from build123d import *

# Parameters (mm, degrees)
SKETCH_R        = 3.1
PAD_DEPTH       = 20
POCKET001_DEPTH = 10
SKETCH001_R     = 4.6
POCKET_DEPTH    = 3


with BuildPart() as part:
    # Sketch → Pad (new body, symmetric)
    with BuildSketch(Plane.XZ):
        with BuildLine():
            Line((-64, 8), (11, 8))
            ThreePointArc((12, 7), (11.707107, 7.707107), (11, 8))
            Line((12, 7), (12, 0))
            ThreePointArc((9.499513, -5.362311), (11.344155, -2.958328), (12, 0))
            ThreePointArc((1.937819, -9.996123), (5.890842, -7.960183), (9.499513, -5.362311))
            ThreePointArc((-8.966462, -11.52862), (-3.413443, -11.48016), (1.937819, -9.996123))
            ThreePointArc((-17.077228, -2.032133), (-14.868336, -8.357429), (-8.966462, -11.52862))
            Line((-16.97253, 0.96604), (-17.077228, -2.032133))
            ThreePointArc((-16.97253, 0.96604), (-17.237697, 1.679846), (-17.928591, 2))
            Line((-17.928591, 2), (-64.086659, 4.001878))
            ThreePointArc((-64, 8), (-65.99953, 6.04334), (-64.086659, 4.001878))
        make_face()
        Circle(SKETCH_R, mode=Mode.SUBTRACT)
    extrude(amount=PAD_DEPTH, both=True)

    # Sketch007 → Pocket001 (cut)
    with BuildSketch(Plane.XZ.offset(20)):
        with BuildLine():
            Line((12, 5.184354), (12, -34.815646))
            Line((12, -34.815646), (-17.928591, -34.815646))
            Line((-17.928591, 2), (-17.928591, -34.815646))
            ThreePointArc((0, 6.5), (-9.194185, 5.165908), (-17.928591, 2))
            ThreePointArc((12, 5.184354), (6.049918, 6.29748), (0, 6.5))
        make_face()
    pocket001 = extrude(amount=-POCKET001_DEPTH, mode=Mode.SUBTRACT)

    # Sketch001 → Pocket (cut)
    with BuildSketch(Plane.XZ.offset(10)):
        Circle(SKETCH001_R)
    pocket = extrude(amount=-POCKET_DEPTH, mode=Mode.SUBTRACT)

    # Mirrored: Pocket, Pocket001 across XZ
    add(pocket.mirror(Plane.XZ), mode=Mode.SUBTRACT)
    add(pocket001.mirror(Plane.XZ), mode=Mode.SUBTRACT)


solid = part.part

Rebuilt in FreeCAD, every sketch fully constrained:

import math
import FreeCAD as App
import Part
import Sketcher

V = App.Vector
Q = App.Units.Quantity

doc = App.newDocument("Part")
body = doc.addObject("PartDesign::Body", "Body")

sketch1 = body.newObject("Sketcher::SketchObject", "Sketch")
sketch1.AttachmentSupport = (doc.getObject("XZ_Plane"), [""])
sketch1.MapMode = "FlatFace"
sketch1.addGeometry(Part.LineSegment(V(11, 8, 0), V(-64, 8, 0)), False)
sketch1.addGeometry(Part.ArcOfCircle(Part.Circle(V(-63.999999, 6, 0), V(0, 0, 1), 2), math.radians(90.000015), math.radians(267.51661)), False)
sketch1.addGeometry(Part.LineSegment(V(-64.086659, 4.001878, 0), V(-17.928591, 2, 0)), False)
sketch1.addGeometry(Part.ArcOfCircle(Part.Circle(V(-17.971922, 1.000938, 0), V(0, 0, 1), 1.000001), math.radians(-1.99992), math.radians(87.516544)), False)
sketch1.addGeometry(Part.LineSegment(V(-16.97253, 0.96604, 0), V(-17.077228, -2.032133, 0)), False)
sketch1.addGeometry(Part.ArcOfCircle(Part.Circle(V(-7.840047, -2.354703, 0), V(0, 0, 1), 9.242811), math.radians(177.999995), math.radians(263.000004)), False)
sketch1.addGeometry(Part.ArcOfCircle(Part.Circle(V(-6.373997, 9.585277, 0), V(0, 0, 1), 21.272459), math.radians(-97.000011), math.radians(-66.999987)), False)
sketch1.addGeometry(Part.ArcOfCircle(Part.Circle(V(-9.784089, 17.61898, 0), V(0, 0, 1), 29.99995), math.radians(-67.000014), math.radians(-49.999987)), False)
sketch1.addGeometry(Part.ArcOfCircle(Part.Circle(V(5.000006, -0.000003, 0), V(0, 0, 1), 6.999994), math.radians(-50.000027), math.radians(0.000021)), False)
sketch1.addGeometry(Part.LineSegment(V(12, 0, 0), V(12, 7, 0)), False)
sketch1.addGeometry(Part.ArcOfCircle(Part.Circle(V(11.000001, 7.000001, 0), V(0, 0, 1), 0.999999), math.radians(-0.000043), math.radians(90.000043)), False)
sketch1.addGeometry(Part.Circle(V(0, 0, 0), V(0, 0, 1), 3.1), False)
sketch1.addConstraint(Sketcher.Constraint("Coincident", 0, 2, 1, 1))
sketch1.addConstraint(Sketcher.Constraint("Coincident", 1, 2, 2, 1))
sketch1.addConstraint(Sketcher.Constraint("Coincident", 2, 2, 3, 2))
sketch1.addConstraint(Sketcher.Constraint("Coincident", 3, 1, 4, 1))
sketch1.addConstraint(Sketcher.Constraint("Coincident", 4, 2, 5, 1))
sketch1.addConstraint(Sketcher.Constraint("Coincident", 5, 2, 6, 1))
sketch1.addConstraint(Sketcher.Constraint("Coincident", 6, 2, 7, 1))
sketch1.addConstraint(Sketcher.Constraint("Coincident", 7, 2, 8, 1))
sketch1.addConstraint(Sketcher.Constraint("Coincident", 8, 2, 9, 1))
sketch1.addConstraint(Sketcher.Constraint("Coincident", 9, 2, 10, 1))
sketch1.addConstraint(Sketcher.Constraint("Coincident", 10, 2, 0, 1))
sketch1.addConstraint(Sketcher.Constraint("Horizontal", 0))
sketch1.addConstraint(Sketcher.Constraint("Vertical", 9))
sketch1.addConstraint(Sketcher.Constraint("Coincident", 11, 3, -1, 1))
sketch1.addConstraint(Sketcher.Constraint("PointOnObject", 8, 2, -1))
sketch1.addConstraint(Sketcher.Constraint("Radius", 1, Q("2 mm")))
sketch1.addConstraint(Sketcher.Constraint("Radius", 3, Q("1.000001 mm")))
sketch1.addConstraint(Sketcher.Constraint("Radius", 10, Q("0.999999 mm")))
sketch1.addConstraint(Sketcher.Constraint("Diameter", 11, Q("6.2 mm")))
sketch1.addConstraint(Sketcher.Constraint("DistanceX", 0, 2, 0, 1, Q("75 mm")))
sketch1.addConstraint(Sketcher.Constraint("DistanceY", 9, 1, 9, 2, Q("7 mm")))
sketch1.addConstraint(Sketcher.Constraint("Distance", 4, Q("3.000001 mm")))
sketch1.addConstraint(Sketcher.Constraint("DistanceX", 1, 3, -1, 1, Q("63.999999 mm")))
sketch1.addConstraint(Sketcher.Constraint("DistanceY", -1, 1, 1, 3, Q("6 mm")))
sketch1.addConstraint(Sketcher.Constraint("DistanceX", -1, 1, 10, 3, Q("11.000001 mm")))
sketch1.addConstraint(Sketcher.Constraint("DistanceX", 0, 2, -1, 1, Q("64 mm")))
sketch1.addConstraint(Sketcher.Constraint("DistanceY", -1, 1, 2, 2, Q("2 mm")))
sketch1.addConstraint(Sketcher.Constraint("Radius", 5, Q("9.242811 mm")))
sketch1.addConstraint(Sketcher.Constraint("Radius", 6, Q("21.272459 mm")))
sketch1.addConstraint(Sketcher.Constraint("Radius", 7, Q("29.99995 mm")))
sketch1.addConstraint(Sketcher.Constraint("Radius", 8, Q("6.999994 mm")))
sketch1.addConstraint(Sketcher.Constraint("DistanceX", 1, 3, 6, 3, Q("57.626002 mm")))
sketch1.addConstraint(Sketcher.Constraint("DistanceY", 5, 3, 8, 3, Q("2.354701 mm")))
sketch1.addConstraint(Sketcher.Constraint("DistanceY", 1, 2, 7, 3, Q("13.617102 mm")))
sketch1.addConstraint(Sketcher.Constraint("DistanceY", 3, 1, 3, 3, Q("0.034898 mm")))
sketch1.addConstraint(Sketcher.Constraint("DistanceX", 4, 2, 3, 1, Q("0.104698 mm")))
sketch1.addConstraint(Sketcher.Constraint("Distance", 2, Q("46.201458 mm")))
sketch1.addConstraint(Sketcher.Constraint("DistanceX", 3, 3, -1, 1, Q("17.971922 mm")))
sketch1.addConstraint(Sketcher.Constraint("DistanceY", -1, 1, 3, 3, Q("1.000938 mm")))
sketch1.addConstraint(Sketcher.Constraint("DistanceX", 5, 2, -1, 1, Q("8.966462 mm")))
sketch1.addConstraint(Sketcher.Constraint("DistanceX", -1, 1, 6, 2, Q("1.937819 mm")))
sketch1.addConstraint(Sketcher.Constraint("DistanceY", 7, 2, -1, 1, Q("5.362311 mm")))
pad1 = body.newObject("PartDesign::Pad", "Pad")
pad1.Profile = sketch1
pad1.Length = 40
pad1.Midplane = True

sketch2 = body.newObject("Sketcher::SketchObject", "Sketch001")
sketch2.AttachmentSupport = (doc.getObject("XZ_Plane"), [""])
sketch2.MapMode = "FlatFace"
sketch2.AttachmentOffset = App.Placement(V(0, 0, 20), App.Rotation())
sketch2.addGeometry(Part.LineSegment(V(12, -35, 0), V(12, 5, 0)), False)
sketch2.addGeometry(Part.ArcOfCircle(Part.Circle(V(2, -33, 0), V(0, 0, 1), 40), math.radians(75.06), math.radians(92.42)), False)
sketch2.addGeometry(Part.ArcOfCircle(Part.Circle(V(2, -39, 0), V(0, 0, 1), 46), math.radians(92), math.radians(116)), False)
sketch2.addGeometry(Part.LineSegment(V(-18, 2, 0), V(-18, -35, 0)), False)
sketch2.addGeometry(Part.LineSegment(V(-18, -35, 0), V(12, -35, 0)), False)
sketch2.addConstraint(Sketcher.Constraint("Coincident", 0, 2, 1, 1))
sketch2.addConstraint(Sketcher.Constraint("Tangent", 1, 2, 2, 1))
sketch2.addConstraint(Sketcher.Constraint("Coincident", 2, 2, 3, 1))
sketch2.addConstraint(Sketcher.Constraint("Coincident", 3, 2, 4, 1))
sketch2.addConstraint(Sketcher.Constraint("Coincident", 4, 2, 0, 1))
sketch2.addConstraint(Sketcher.Constraint("Vertical", 0))
sketch2.addConstraint(Sketcher.Constraint("Vertical", 3))
sketch2.addConstraint(Sketcher.Constraint("Horizontal", 4))
sketch2.addConstraint(Sketcher.Constraint("PointOnObject", 1, 2, -2))
sketch2.addConstraint(Sketcher.Constraint("DistanceY", 0, 1, 0, 2, Q("40 mm")))
sketch2.addConstraint(Sketcher.Constraint("DistanceX", -1, 1, 0, 2, Q("12 mm")))
sketch2.addConstraint(Sketcher.Constraint("DistanceY", -1, 1, 2, 2, Q("2 mm")))
sketch2.addConstraint(Sketcher.Constraint("DistanceY", -1, 1, 1, 2, Q("6.5 mm")))
sketch2.addConstraint(Sketcher.Constraint("Radius", 1, Q("40.000026 mm")))
sketch2.addConstraint(Sketcher.Constraint("Radius", 2, Q("45.701142 mm")))
sketch2.addConstraint(Sketcher.Constraint("DistanceX", 4, 1, 4, 2, Q("29.928591 mm")))
pocket1 = body.newObject("PartDesign::Pocket", "Pocket")
pocket1.Profile = sketch2
pocket1.Length = 10

sketch3 = body.newObject("Sketcher::SketchObject", "Sketch002")
sketch3.AttachmentSupport = (doc.getObject("XZ_Plane"), [""])
sketch3.MapMode = "FlatFace"
sketch3.AttachmentOffset = App.Placement(V(0, 0, 10), App.Rotation())
sketch3.addGeometry(Part.Circle(V(0, 0, 0), V(0, 0, 1), 4.6), False)
sketch3.addConstraint(Sketcher.Constraint("Coincident", 0, 3, -1, 1))
sketch3.addConstraint(Sketcher.Constraint("Diameter", 0, Q("9.2 mm")))
pocket2 = body.newObject("PartDesign::Pocket", "Pocket001")
pocket2.Profile = sketch3
pocket2.Length = 3
doc.recompute()

mirrored = body.newObject("PartDesign::Mirrored", "Mirrored")
mirrored.Originals = [pocket2, pocket1]
mirrored.MirrorPlane = (doc.getObject("XZ_Plane"), [""])
body.Tip = mirrored

doc.recompute()
